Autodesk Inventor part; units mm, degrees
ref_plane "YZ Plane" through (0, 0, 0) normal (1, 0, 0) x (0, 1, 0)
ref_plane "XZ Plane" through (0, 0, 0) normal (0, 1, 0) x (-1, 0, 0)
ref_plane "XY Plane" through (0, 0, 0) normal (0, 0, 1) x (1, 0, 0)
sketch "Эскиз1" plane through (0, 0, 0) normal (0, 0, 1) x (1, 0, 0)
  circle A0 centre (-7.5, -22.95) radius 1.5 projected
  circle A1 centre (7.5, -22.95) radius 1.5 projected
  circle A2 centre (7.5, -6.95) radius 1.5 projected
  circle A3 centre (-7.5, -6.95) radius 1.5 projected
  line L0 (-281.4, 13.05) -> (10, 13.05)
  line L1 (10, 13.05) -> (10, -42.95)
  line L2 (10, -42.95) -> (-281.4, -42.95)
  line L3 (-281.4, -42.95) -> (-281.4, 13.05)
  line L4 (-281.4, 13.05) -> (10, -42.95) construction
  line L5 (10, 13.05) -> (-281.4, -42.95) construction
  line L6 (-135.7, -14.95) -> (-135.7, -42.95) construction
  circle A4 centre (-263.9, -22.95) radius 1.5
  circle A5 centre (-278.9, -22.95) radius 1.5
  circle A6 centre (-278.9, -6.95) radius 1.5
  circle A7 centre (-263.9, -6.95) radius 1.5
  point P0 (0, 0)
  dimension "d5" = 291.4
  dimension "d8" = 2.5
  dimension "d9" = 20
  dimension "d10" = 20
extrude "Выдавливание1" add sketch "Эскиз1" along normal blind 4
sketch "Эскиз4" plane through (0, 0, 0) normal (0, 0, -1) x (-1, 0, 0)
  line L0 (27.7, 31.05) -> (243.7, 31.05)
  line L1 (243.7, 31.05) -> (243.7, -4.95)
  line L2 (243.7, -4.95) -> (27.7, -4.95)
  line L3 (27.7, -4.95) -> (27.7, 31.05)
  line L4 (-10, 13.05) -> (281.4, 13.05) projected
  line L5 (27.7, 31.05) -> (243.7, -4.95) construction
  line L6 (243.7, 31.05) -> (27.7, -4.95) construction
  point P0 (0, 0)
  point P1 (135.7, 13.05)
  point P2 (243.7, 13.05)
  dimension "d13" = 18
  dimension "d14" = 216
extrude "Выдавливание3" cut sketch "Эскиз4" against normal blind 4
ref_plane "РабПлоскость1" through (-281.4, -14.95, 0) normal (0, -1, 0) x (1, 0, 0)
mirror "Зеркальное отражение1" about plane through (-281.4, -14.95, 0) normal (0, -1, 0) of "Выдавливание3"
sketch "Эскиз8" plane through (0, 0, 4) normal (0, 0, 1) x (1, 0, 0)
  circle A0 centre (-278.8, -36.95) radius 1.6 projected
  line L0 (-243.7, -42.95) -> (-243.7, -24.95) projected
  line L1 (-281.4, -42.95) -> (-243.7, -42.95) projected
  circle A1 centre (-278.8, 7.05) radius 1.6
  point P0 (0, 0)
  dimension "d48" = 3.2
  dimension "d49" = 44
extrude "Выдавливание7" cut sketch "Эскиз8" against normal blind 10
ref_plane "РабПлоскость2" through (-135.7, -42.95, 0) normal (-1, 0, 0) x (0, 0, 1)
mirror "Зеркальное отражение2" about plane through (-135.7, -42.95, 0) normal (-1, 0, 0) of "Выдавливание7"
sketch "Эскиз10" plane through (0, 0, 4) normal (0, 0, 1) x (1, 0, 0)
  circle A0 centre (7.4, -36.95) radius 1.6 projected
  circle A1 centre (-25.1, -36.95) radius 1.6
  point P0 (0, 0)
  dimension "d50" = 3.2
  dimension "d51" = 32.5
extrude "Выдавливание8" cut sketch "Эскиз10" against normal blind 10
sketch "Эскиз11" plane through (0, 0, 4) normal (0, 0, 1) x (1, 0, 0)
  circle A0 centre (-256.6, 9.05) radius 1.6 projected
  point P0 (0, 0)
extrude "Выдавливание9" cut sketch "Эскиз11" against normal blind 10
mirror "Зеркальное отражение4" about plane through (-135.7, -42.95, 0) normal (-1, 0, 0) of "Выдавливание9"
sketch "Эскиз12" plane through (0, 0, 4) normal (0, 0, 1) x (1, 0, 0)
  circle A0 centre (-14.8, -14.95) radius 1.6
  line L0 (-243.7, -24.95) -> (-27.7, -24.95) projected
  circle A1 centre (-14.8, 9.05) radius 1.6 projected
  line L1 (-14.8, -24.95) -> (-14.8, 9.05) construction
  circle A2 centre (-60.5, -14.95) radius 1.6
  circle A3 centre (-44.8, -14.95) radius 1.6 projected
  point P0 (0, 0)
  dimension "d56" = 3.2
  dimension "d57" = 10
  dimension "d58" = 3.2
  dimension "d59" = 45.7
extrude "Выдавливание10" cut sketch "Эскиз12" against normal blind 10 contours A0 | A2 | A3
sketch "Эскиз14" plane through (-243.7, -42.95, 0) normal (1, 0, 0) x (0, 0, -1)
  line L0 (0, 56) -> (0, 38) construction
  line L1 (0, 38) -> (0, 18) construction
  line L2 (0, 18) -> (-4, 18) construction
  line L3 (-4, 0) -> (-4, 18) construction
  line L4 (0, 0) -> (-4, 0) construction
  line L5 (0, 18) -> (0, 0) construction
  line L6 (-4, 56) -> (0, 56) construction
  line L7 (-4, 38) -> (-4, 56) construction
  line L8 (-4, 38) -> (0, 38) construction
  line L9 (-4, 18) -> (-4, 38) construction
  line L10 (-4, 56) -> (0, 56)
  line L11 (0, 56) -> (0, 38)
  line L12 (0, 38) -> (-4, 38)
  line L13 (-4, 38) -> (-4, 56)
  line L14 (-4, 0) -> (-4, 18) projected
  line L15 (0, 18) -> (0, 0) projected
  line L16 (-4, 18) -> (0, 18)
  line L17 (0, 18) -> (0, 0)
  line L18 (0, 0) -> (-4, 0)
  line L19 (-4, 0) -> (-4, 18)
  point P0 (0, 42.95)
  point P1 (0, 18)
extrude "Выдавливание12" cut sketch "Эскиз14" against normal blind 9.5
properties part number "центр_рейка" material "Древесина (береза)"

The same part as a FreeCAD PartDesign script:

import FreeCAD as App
import Part
import Sketcher

doc = App.newDocument("Part")
body = doc.addObject("PartDesign::Body", "Body")

# Sketch on XY plane
sketch1 = body.newObject("Sketcher::SketchObject", "Sketch")
sketch1.AttachmentSupport = (doc.getObject("XY_Plane"), [""])
sketch1.MapMode = "FlatFace"
sketch1.addGeometry(Part.LineSegment(App.Vector(10, 13.05, 0), App.Vector(-281.4, 13.05, 0)), False)
sketch1.addGeometry(Part.LineSegment(App.Vector(-281.4, 13.05, 0), App.Vector(-281.4, -42.95, 0)), False)
sketch1.addGeometry(Part.LineSegment(App.Vector(-281.4, -42.95, 0), App.Vector(10, -42.95, 0)), False)
sketch1.addGeometry(Part.LineSegment(App.Vector(10, -42.95, 0), App.Vector(10, 13.05, 0)), False)
sketch1.addGeometry(Part.Circle(App.Vector(-278.9, -22.95, 0), App.Vector(0, 0, 1), 1.5), False)
sketch1.addGeometry(Part.Circle(App.Vector(-263.9, -22.95, 0), App.Vector(0, 0, 1), 1.5), False)
sketch1.addGeometry(Part.Circle(App.Vector(-7.5, -22.95, 0), App.Vector(0, 0, 1), 1.5), False)
sketch1.addGeometry(Part.Circle(App.Vector(7.5, -22.95, 0), App.Vector(0, 0, 1), 1.5), False)
sketch1.addGeometry(Part.Circle(App.Vector(-278.9, -6.95, 0), App.Vector(0, 0, 1), 1.5), False)
sketch1.addGeometry(Part.Circle(App.Vector(-263.9, -6.95, 0), App.Vector(0, 0, 1), 1.5), False)
sketch1.addGeometry(Part.Circle(App.Vector(-7.5, -6.95, 0), App.Vector(0, 0, 1), 1.5), False)
sketch1.addGeometry(Part.Circle(App.Vector(7.5, -6.95, 0), App.Vector(0, 0, 1), 1.5), False)
sketch1.addConstraint(Sketcher.Constraint("Coincident", 0, 2, 1, 1))
sketch1.addConstraint(Sketcher.Constraint("Coincident", 1, 2, 2, 1))
sketch1.addConstraint(Sketcher.Constraint("Coincident", 2, 2, 3, 1))
sketch1.addConstraint(Sketcher.Constraint("Coincident", 3, 2, 0, 1))
sketch1.addConstraint(Sketcher.Constraint("Horizontal", 0))
sketch1.addConstraint(Sketcher.Constraint("Vertical", 1))
sketch1.addConstraint(Sketcher.Constraint("Horizontal", 2))
sketch1.addConstraint(Sketcher.Constraint("Vertical", 3))
sketch1.addConstraint(Sketcher.Constraint("Equal", 4, 5))
sketch1.addConstraint(Sketcher.Constraint("Equal", 5, 6))
sketch1.addConstraint(Sketcher.Constraint("Equal", 6, 7))
sketch1.addConstraint(Sketcher.Constraint("Equal", 7, 8))
sketch1.addConstraint(Sketcher.Constraint("Equal", 8, 9))
sketch1.addConstraint(Sketcher.Constraint("Equal", 9, 10))
sketch1.addConstraint(Sketcher.Constraint("Equal", 10, 11))
sketch1.addConstraint(Sketcher.Constraint("Symmetric", 6, 3, 7, 3, -2))
sketch1.addConstraint(Sketcher.Constraint("Symmetric", 10, 3, 11, 3, -2))
sketch1.addConstraint(Sketcher.Constraint("Horizontal", 4, 3, 5, 3))
sketch1.addConstraint(Sketcher.Constraint("Horizontal", 5, 3, 6, 3))
sketch1.addConstraint(Sketcher.Constraint("Horizontal", 8, 3, 9, 3))
sketch1.addConstraint(Sketcher.Constraint("Horizontal", 9, 3, 10, 3))
sketch1.addConstraint(Sketcher.Constraint("Vertical", 4, 3, 8, 3))
sketch1.addConstraint(Sketcher.Constraint("Vertical", 5, 3, 9, 3))
sketch1.addConstraint(Sketcher.Constraint("Vertical", 6, 3, 10, 3))
sketch1.addConstraint(Sketcher.Constraint("Diameter", 4, 3.0))
sketch1.addConstraint(Sketcher.Constraint("DistanceX", 0, 2, 0, 1, 291.4))
sketch1.addConstraint(Sketcher.Constraint("DistanceY", 8, 3, 0, 2, 20.0))
sketch1.addConstraint(Sketcher.Constraint("DistanceY", 1, 2, 4, 3, 20.0))
sketch1.addConstraint(Sketcher.Constraint("DistanceX", 0, 2, 8, 3, 2.5))
sketch1.addConstraint(Sketcher.Constraint("DistanceX", 7, 3, 2, 2, 2.5))
sketch1.addConstraint(Sketcher.Constraint("DistanceY", 1, 2, 1, 1, 56.0))
sketch1.addConstraint(Sketcher.Constraint("DistanceX", -1, 1, 2, 2, 10.0))
sketch1.addConstraint(Sketcher.Constraint("DistanceX", 4, 3, 5, 3, 15.0))
sketch1.addConstraint(Sketcher.Constraint("DistanceY", 4, 3, -1, 1, 22.95))
pad1 = body.newObject("PartDesign::Pad", "Pad")
pad1.Profile = sketch1
pad1.Length = 4

# Sketch on XY plane
sketch2 = body.newObject("Sketcher::SketchObject", "Sketch001")
sketch2.AttachmentSupport = (doc.getObject("XY_Plane"), [""])
sketch2.MapMode = "FlatFace"
sketch2.addGeometry(Part.LineSegment(App.Vector(-243.7, 31.05, 0), App.Vector(-27.7, 31.05, 0)), False)
sketch2.addGeometry(Part.LineSegment(App.Vector(-27.7, 31.05, 0), App.Vector(-27.7, -4.95, 0)), False)
sketch2.addGeometry(Part.LineSegment(App.Vector(-27.7, -4.95, 0), App.Vector(-243.7, -4.95, 0)), False)
sketch2.addGeometry(Part.LineSegment(App.Vector(-243.7, -4.95, 0), App.Vector(-243.7, 31.05, 0)), False)
sketch2.addConstraint(Sketcher.Constraint("Coincident", 0, 2, 1, 1))
sketch2.addConstraint(Sketcher.Constraint("Coincident", 1, 2, 2, 1))
sketch2.addConstraint(Sketcher.Constraint("Coincident", 2, 2, 3, 1))
sketch2.addConstraint(Sketcher.Constraint("Coincident", 3, 2, 0, 1))
sketch2.addConstraint(Sketcher.Constraint("Horizontal", 0))
sketch2.addConstraint(Sketcher.Constraint("Vertical", 1))
sketch2.addConstraint(Sketcher.Constraint("Horizontal", 2))
sketch2.addConstraint(Sketcher.Constraint("Vertical", 3))
sketch2.addConstraint(Sketcher.Constraint("DistanceX", 0, 1, 0, 2, 216.0))
sketch2.addConstraint(Sketcher.Constraint("DistanceY", 1, 2, 1, 1, 36.0))
sketch2.addConstraint(Sketcher.Constraint("DistanceX", 0, 2, -1, 1, 27.7))
sketch2.addConstraint(Sketcher.Constraint("DistanceY", -1, 1, 0, 2, 31.05))
pocket1 = body.newObject("PartDesign::Pocket", "Pocket")
pocket1.Profile = sketch2
pocket1.Length = 4
pocket1.Reversed = True
doc.recompute()

datumplane = body.newObject("PartDesign::Plane", "DatumPlane")
datumplane.AttachmentSupport = (doc.getObject("XZ_Plane"), [""])
datumplane.MapMode = "FlatFace"
datumplane.AttachmentOffset = App.Placement(App.Vector(0, 0, 14.95), App.Rotation())
mirrored = body.newObject("PartDesign::Mirrored", "Mirrored")
mirrored.Originals = [pocket1]
mirrored.MirrorPlane = (datumplane, [""])
body.Tip = mirrored

# Sketch on XY plane
sketch3 = body.newObject("Sketcher::SketchObject", "Sketch002")
sketch3.AttachmentSupport = (doc.getObject("XY_Plane"), [""])
sketch3.MapMode = "FlatFace"
sketch3.AttachmentOffset = App.Placement(App.Vector(0, 0, 4), App.Rotation())
sketch3.addGeometry(Part.Circle(App.Vector(-278.8, -36.95, 0), App.Vector(0, 0, 1), 1.6), False)
sketch3.addGeometry(Part.Circle(App.Vector(-278.8, 7.05, 0), App.Vector(0, 0, 1), 1.6), False)
sketch3.addConstraint(Sketcher.Constraint("Equal", 0, 1))
sketch3.addConstraint(Sketcher.Constraint("Vertical", 0, 3, 1, 3))
sketch3.addConstraint(Sketcher.Constraint("Diameter", 0, 3.2))
sketch3.addConstraint(Sketcher.Constraint("DistanceY", 0, 3, 1, 3, 44.0))
sketch3.addConstraint(Sketcher.Constraint("DistanceX", 0, 3, -1, 1, 278.8))
sketch3.addConstraint(Sketcher.Constraint("DistanceY", 0, 3, -1, 1, 36.95))
pocket2 = body.newObject("PartDesign::Pocket", "Pocket001")
pocket2.Profile = sketch3
pocket2.Length = 10
doc.recompute()

datumplane2 = body.newObject("PartDesign::Plane", "DatumPlane001")
datumplane2.AttachmentSupport = (doc.getObject("YZ_Plane"), [""])
datumplane2.MapMode = "FlatFace"
datumplane2.AttachmentOffset = App.Placement(App.Vector(0, 0, -135.7), App.Rotation())
mirrored2 = body.newObject("PartDesign::Mirrored", "Mirrored001")
mirrored2.Originals = [pocket2]
mirrored2.MirrorPlane = (datumplane2, [""])
body.Tip = mirrored2

# Sketch on XY plane
sketch4 = body.newObject("Sketcher::SketchObject", "Sketch003")
sketch4.AttachmentSupport = (doc.getObject("XY_Plane"), [""])
sketch4.MapMode = "FlatFace"
sketch4.AttachmentOffset = App.Placement(App.Vector(0, 0, 4), App.Rotation())
sketch4.addGeometry(Part.Circle(App.Vector(7.4, -36.95, 0), App.Vector(0, 0, 1), 1.6), False)
sketch4.addGeometry(Part.Circle(App.Vector(-25.1, -36.95, 0), App.Vector(0, 0, 1), 1.6), False)
sketch4.addConstraint(Sketcher.Constraint("Equal", 0, 1))
sketch4.addConstraint(Sketcher.Constraint("Horizontal", 0, 3, 1, 3))
sketch4.addConstraint(Sketcher.Constraint("Diameter", 0, 3.2))
sketch4.addConstraint(Sketcher.Constraint("DistanceX", 1, 3, 0, 3, 32.5))
sketch4.addConstraint(Sketcher.Constraint("DistanceX", -1, 1, 0, 3, 7.4))
sketch4.addConstraint(Sketcher.Constraint("DistanceY", 0, 3, -1, 1, 36.95))
pocket3 = body.newObject("PartDesign::Pocket", "Pocket002")
pocket3.Profile = sketch4
pocket3.Length = 10

# Sketch on XY plane
sketch5 = body.newObject("Sketcher::SketchObject", "Sketch004")
sketch5.AttachmentSupport = (doc.getObject("XY_Plane"), [""])
sketch5.MapMode = "FlatFace"
sketch5.AttachmentOffset = App.Placement(App.Vector(0, 0, 4), App.Rotation())
sketch5.addGeometry(Part.Circle(App.Vector(-256.6, 9.05, 0), App.Vector(0, 0, 1), 1.6), False)
sketch5.addConstraint(Sketcher.Constraint("Diameter", 0, 3.2))
sketch5.addConstraint(Sketcher.Constraint("DistanceX", 0, 3, -1, 1, 256.6))
sketch5.addConstraint(Sketcher.Constraint("DistanceY", -1, 1, 0, 3, 9.05))
pocket4 = body.newObject("PartDesign::Pocket", "Pocket003")
pocket4.Profile = sketch5
pocket4.Length = 10
doc.recompute()

datumplane3 = body.newObject("PartDesign::Plane", "DatumPlane002")
datumplane3.AttachmentSupport = (doc.getObject("YZ_Plane"), [""])
datumplane3.MapMode = "FlatFace"
datumplane3.AttachmentOffset = App.Placement(App.Vector(0, 0, -135.7), App.Rotation())
mirrored3 = body.newObject("PartDesign::Mirrored", "Mirrored002")
mirrored3.Originals = [pocket4]
mirrored3.MirrorPlane = (datumplane3, [""])
body.Tip = mirrored3

# Sketch on XY plane
sketch6 = body.newObject("Sketcher::SketchObject", "Sketch005")
sketch6.AttachmentSupport = (doc.getObject("XY_Plane"), [""])
sketch6.MapMode = "FlatFace"
sketch6.AttachmentOffset = App.Placement(App.Vector(0, 0, 4), App.Rotation())
sketch6.addGeometry(Part.Circle(App.Vector(-14.8, -14.95, 0), App.Vector(0, 0, 1), 1.6), False)
sketch6.addGeometry(Part.Circle(App.Vector(-60.5, -14.95, 0), App.Vector(0, 0, 1), 1.6), False)
sketch6.addGeometry(Part.Circle(App.Vector(-44.8, -14.95, 0), App.Vector(0, 0, 1), 1.6), False)
sketch6.addConstraint(Sketcher.Constraint("Equal", 0, 1))
sketch6.addConstraint(Sketcher.Constraint("Equal", 1, 2))
sketch6.addConstraint(Sketcher.Constraint("Horizontal", 0, 3, 1, 3))
sketch6.addConstraint(Sketcher.Constraint("Horizontal", 1, 3, 2, 3))
sketch6.addConstraint(Sketcher.Constraint("Diameter", 0, 3.2))
sketch6.addConstraint(Sketcher.Constraint("DistanceX", 1, 3, 0, 3, 45.7))
sketch6.addConstraint(Sketcher.Constraint("DistanceX", 2, 3, 0, 3, 30.0))
sketch6.addConstraint(Sketcher.Constraint("DistanceX", 0, 3, -1, 1, 14.8))
sketch6.addConstraint(Sketcher.Constraint("DistanceY", 0, 3, -1, 1, 14.95))
pocket5 = body.newObject("PartDesign::Pocket", "Pocket004")
pocket5.Profile = sketch6
pocket5.Length = 10

# Sketch on YZ plane
sketch7 = body.newObject("Sketcher::SketchObject", "Sketch006")
sketch7.AttachmentSupport = (doc.getObject("YZ_Plane"), [""])
sketch7.MapMode = "FlatFace"
sketch7.AttachmentOffset = App.Placement(App.Vector(0, 0, -243.7), App.Rotation())
sketch7.addGeometry(Part.LineSegment(App.Vector(13.05, 0, 0), App.Vector(13.05, 4, 0)), False)
sketch7.addGeometry(Part.LineSegment(App.Vector(13.05, 4, 0), App.Vector(-4.95, 4, 0)), False)
sketch7.addGeometry(Part.LineSegment(App.Vector(-4.95, 4, 0), App.Vector(-4.95, 0, 0)), False)
sketch7.addGeometry(Part.LineSegment(App.Vector(-4.95, 0, 0), App.Vector(13.05, 0, 0)), False)
sketch7.addGeometry(Part.LineSegment(App.Vector(-24.95, 4, 0), App.Vector(-42.95, 4, 0)), False)
sketch7.addGeometry(Part.LineSegment(App.Vector(-42.95, 4, 0), App.Vector(-42.95, 0, 0)), False)
sketch7.addGeometry(Part.LineSegment(App.Vector(-42.95, 0, 0), App.Vector(-24.95, 0, 0)), False)
sketch7.addGeometry(Part.LineSegment(App.Vector(-24.95, 0, 0), App.Vector(-24.95, 4, 0)), False)
sketch7.addConstraint(Sketcher.Constraint("Coincident", 0, 2, 1, 1))
sketch7.addConstraint(Sketcher.Constraint("Coincident", 1, 2, 2, 1))
sketch7.addConstraint(Sketcher.Constraint("Coincident", 2, 2, 3, 1))
sketch7.addConstraint(Sketcher.Constraint("Coincident", 3, 2, 0, 1))
sketch7.addConstraint(Sketcher.Constraint("Coincident", 4, 2, 5, 1))
sketch7.addConstraint(Sketcher.Constraint("Coincident", 5, 2, 6, 1))
sketch7.addConstraint(Sketcher.Constraint("Coincident", 6, 2, 7, 1))
sketch7.addConstraint(Sketcher.Constraint("Coincident", 7, 2, 4, 1))
sketch7.addConstraint(Sketcher.Constraint("Vertical", 0))
sketch7.addConstraint(Sketcher.Constraint("Horizontal", 1))
sketch7.addConstraint(Sketcher.Constraint("Vertical", 2))
sketch7.addConstraint(Sketcher.Constraint("Horizontal", 3))
sketch7.addConstraint(Sketcher.Constraint("Horizontal", 4))
sketch7.addConstraint(Sketcher.Constraint("Vertical", 5))
sketch7.addConstraint(Sketcher.Constraint("Horizontal", 6))
sketch7.addConstraint(Sketcher.Constraint("Vertical", 7))
sketch7.addConstraint(Sketcher.Constraint("PointOnObject", 2, 2, -1))
sketch7.addConstraint(Sketcher.Constraint("PointOnObject", 5, 2, -1))
sketch7.addConstraint(Sketcher.Constraint("Horizontal", 1, 2, 4, 2))
sketch7.addConstraint(Sketcher.Constraint("Equal", 3, 4))
sketch7.addConstraint(Sketcher.Constraint("DistanceX", 1, 2, 1, 1, 18.0))
sketch7.addConstraint(Sketcher.Constraint("DistanceY", 0, 1, 0, 2, 4.0))
sketch7.addConstraint(Sketcher.Constraint("DistanceX", 4, 2, 1, 2, 38.0))
sketch7.addConstraint(Sketcher.Constraint("DistanceX", -1, 1, 0, 2, 13.05))
pocket6 = body.newObject("PartDesign::Pocket", "Pocket005")
pocket6.Profile = sketch7
pocket6.Length = 9.5

doc.recompute()
